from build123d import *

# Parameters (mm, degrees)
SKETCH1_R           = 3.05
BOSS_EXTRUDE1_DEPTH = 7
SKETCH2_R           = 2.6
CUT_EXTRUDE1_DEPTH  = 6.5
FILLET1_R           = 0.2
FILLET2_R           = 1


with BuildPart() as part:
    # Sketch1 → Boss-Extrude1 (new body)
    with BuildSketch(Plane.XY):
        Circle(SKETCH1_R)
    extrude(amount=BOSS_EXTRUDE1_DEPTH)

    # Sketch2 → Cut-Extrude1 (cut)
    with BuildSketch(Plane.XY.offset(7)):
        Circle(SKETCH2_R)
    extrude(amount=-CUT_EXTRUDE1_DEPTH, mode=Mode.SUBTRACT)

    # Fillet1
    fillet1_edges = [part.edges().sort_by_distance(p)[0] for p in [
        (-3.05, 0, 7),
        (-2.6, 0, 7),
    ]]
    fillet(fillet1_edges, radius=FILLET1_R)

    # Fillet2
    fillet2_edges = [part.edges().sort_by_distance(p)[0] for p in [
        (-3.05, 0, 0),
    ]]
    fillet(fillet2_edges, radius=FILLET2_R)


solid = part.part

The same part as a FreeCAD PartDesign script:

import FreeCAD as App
import Part
import Sketcher

V = App.Vector
Q = App.Units.Quantity


def edges_at(feature, points):
    """Names of the edges that pass closest to the given points."""
    edges = feature.Shape.Edges
    near = lambda p: min(range(len(edges)), key=lambda i: edges[i].distToShape(Part.Vertex(*p))[0])
    return sorted({f"Edge{near(p) + 1}" for p in points})

doc = App.newDocument("Part")
params = doc.addObject("Spreadsheet::Sheet", "Params")
for row, (alias, value) in enumerate([
    ("sketch1_diameter", "6.1 mm"),
    ("pad1_length", "7 mm"),
    ("sketch2_diameter", "5.2 mm"),
    ("pocket1_length", "6.5 mm"),
    ("fillet_radius", "0.2 mm"),
    ("fillet2_radius", "1 mm"),
], start=1):
    params.set(f"A{row}", alias)
    params.set(f"B{row}", "=" + value)
    params.setAlias(f"B{row}", alias)

body = doc.addObject("PartDesign::Body", "Body")

# Sketch on XY plane
sketch1 = body.newObject("Sketcher::SketchObject", "Sketch")
sketch1.AttachmentSupport = (doc.getObject("XY_Plane"), [""])
sketch1.MapMode = "FlatFace"
sketch1.addGeometry(Part.Circle(V(0, 0, 0), V(0, 0, 1), 3.05), False)
sketch1.addConstraint([
    Sketcher.Constraint("Coincident", 0, 3, -1, 1),
    Sketcher.Constraint("Diameter", 0, Q("6.1 mm")),
])
sketch1.setExpression("Constraints[1]", "Params.sketch1_diameter")
pad1 = body.newObject("PartDesign::Pad", "Pad")
pad1.Profile = sketch1
pad1.setExpression("Length", "Params.pad1_length")

# Sketch on XY plane
sketch2 = body.newObject("Sketcher::SketchObject", "Sketch001")
sketch2.AttachmentSupport = (doc.getObject("XY_Plane"), [""])
sketch2.MapMode = "FlatFace"
sketch2.AttachmentOffset = App.Placement(V(0, 0, 7), App.Rotation())
sketch2.addGeometry(Part.Circle(V(0, 0, 0), V(0, 0, 1), 2.6), False)
sketch2.addConstraint([
    Sketcher.Constraint("Coincident", 0, 3, -1, 1),
    Sketcher.Constraint("Diameter", 0, Q("5.2 mm")),
])
sketch2.setExpression("Constraints[1]", "Params.sketch2_diameter")
pocket1 = body.newObject("PartDesign::Pocket", "Pocket")
pocket1.Profile = sketch2
pocket1.setExpression("Length", "Params.pocket1_length")
doc.recompute()

fillet = body.newObject("PartDesign::Fillet", "Fillet")
fillet.Base = (pocket1, edges_at(pocket1, [(-3.05, 0, 7), (-2.6, 0, 7)]))
fillet.setExpression("Radius", "Params.fillet_radius")
doc.recompute()

fillet2 = body.newObject("PartDesign::Fillet", "Fillet001")
fillet2.Base = (fillet, edges_at(fillet, [(-3.05, 0, 0)]))
fillet2.setExpression("Radius", "Params.fillet2_radius")

doc.recompute()
